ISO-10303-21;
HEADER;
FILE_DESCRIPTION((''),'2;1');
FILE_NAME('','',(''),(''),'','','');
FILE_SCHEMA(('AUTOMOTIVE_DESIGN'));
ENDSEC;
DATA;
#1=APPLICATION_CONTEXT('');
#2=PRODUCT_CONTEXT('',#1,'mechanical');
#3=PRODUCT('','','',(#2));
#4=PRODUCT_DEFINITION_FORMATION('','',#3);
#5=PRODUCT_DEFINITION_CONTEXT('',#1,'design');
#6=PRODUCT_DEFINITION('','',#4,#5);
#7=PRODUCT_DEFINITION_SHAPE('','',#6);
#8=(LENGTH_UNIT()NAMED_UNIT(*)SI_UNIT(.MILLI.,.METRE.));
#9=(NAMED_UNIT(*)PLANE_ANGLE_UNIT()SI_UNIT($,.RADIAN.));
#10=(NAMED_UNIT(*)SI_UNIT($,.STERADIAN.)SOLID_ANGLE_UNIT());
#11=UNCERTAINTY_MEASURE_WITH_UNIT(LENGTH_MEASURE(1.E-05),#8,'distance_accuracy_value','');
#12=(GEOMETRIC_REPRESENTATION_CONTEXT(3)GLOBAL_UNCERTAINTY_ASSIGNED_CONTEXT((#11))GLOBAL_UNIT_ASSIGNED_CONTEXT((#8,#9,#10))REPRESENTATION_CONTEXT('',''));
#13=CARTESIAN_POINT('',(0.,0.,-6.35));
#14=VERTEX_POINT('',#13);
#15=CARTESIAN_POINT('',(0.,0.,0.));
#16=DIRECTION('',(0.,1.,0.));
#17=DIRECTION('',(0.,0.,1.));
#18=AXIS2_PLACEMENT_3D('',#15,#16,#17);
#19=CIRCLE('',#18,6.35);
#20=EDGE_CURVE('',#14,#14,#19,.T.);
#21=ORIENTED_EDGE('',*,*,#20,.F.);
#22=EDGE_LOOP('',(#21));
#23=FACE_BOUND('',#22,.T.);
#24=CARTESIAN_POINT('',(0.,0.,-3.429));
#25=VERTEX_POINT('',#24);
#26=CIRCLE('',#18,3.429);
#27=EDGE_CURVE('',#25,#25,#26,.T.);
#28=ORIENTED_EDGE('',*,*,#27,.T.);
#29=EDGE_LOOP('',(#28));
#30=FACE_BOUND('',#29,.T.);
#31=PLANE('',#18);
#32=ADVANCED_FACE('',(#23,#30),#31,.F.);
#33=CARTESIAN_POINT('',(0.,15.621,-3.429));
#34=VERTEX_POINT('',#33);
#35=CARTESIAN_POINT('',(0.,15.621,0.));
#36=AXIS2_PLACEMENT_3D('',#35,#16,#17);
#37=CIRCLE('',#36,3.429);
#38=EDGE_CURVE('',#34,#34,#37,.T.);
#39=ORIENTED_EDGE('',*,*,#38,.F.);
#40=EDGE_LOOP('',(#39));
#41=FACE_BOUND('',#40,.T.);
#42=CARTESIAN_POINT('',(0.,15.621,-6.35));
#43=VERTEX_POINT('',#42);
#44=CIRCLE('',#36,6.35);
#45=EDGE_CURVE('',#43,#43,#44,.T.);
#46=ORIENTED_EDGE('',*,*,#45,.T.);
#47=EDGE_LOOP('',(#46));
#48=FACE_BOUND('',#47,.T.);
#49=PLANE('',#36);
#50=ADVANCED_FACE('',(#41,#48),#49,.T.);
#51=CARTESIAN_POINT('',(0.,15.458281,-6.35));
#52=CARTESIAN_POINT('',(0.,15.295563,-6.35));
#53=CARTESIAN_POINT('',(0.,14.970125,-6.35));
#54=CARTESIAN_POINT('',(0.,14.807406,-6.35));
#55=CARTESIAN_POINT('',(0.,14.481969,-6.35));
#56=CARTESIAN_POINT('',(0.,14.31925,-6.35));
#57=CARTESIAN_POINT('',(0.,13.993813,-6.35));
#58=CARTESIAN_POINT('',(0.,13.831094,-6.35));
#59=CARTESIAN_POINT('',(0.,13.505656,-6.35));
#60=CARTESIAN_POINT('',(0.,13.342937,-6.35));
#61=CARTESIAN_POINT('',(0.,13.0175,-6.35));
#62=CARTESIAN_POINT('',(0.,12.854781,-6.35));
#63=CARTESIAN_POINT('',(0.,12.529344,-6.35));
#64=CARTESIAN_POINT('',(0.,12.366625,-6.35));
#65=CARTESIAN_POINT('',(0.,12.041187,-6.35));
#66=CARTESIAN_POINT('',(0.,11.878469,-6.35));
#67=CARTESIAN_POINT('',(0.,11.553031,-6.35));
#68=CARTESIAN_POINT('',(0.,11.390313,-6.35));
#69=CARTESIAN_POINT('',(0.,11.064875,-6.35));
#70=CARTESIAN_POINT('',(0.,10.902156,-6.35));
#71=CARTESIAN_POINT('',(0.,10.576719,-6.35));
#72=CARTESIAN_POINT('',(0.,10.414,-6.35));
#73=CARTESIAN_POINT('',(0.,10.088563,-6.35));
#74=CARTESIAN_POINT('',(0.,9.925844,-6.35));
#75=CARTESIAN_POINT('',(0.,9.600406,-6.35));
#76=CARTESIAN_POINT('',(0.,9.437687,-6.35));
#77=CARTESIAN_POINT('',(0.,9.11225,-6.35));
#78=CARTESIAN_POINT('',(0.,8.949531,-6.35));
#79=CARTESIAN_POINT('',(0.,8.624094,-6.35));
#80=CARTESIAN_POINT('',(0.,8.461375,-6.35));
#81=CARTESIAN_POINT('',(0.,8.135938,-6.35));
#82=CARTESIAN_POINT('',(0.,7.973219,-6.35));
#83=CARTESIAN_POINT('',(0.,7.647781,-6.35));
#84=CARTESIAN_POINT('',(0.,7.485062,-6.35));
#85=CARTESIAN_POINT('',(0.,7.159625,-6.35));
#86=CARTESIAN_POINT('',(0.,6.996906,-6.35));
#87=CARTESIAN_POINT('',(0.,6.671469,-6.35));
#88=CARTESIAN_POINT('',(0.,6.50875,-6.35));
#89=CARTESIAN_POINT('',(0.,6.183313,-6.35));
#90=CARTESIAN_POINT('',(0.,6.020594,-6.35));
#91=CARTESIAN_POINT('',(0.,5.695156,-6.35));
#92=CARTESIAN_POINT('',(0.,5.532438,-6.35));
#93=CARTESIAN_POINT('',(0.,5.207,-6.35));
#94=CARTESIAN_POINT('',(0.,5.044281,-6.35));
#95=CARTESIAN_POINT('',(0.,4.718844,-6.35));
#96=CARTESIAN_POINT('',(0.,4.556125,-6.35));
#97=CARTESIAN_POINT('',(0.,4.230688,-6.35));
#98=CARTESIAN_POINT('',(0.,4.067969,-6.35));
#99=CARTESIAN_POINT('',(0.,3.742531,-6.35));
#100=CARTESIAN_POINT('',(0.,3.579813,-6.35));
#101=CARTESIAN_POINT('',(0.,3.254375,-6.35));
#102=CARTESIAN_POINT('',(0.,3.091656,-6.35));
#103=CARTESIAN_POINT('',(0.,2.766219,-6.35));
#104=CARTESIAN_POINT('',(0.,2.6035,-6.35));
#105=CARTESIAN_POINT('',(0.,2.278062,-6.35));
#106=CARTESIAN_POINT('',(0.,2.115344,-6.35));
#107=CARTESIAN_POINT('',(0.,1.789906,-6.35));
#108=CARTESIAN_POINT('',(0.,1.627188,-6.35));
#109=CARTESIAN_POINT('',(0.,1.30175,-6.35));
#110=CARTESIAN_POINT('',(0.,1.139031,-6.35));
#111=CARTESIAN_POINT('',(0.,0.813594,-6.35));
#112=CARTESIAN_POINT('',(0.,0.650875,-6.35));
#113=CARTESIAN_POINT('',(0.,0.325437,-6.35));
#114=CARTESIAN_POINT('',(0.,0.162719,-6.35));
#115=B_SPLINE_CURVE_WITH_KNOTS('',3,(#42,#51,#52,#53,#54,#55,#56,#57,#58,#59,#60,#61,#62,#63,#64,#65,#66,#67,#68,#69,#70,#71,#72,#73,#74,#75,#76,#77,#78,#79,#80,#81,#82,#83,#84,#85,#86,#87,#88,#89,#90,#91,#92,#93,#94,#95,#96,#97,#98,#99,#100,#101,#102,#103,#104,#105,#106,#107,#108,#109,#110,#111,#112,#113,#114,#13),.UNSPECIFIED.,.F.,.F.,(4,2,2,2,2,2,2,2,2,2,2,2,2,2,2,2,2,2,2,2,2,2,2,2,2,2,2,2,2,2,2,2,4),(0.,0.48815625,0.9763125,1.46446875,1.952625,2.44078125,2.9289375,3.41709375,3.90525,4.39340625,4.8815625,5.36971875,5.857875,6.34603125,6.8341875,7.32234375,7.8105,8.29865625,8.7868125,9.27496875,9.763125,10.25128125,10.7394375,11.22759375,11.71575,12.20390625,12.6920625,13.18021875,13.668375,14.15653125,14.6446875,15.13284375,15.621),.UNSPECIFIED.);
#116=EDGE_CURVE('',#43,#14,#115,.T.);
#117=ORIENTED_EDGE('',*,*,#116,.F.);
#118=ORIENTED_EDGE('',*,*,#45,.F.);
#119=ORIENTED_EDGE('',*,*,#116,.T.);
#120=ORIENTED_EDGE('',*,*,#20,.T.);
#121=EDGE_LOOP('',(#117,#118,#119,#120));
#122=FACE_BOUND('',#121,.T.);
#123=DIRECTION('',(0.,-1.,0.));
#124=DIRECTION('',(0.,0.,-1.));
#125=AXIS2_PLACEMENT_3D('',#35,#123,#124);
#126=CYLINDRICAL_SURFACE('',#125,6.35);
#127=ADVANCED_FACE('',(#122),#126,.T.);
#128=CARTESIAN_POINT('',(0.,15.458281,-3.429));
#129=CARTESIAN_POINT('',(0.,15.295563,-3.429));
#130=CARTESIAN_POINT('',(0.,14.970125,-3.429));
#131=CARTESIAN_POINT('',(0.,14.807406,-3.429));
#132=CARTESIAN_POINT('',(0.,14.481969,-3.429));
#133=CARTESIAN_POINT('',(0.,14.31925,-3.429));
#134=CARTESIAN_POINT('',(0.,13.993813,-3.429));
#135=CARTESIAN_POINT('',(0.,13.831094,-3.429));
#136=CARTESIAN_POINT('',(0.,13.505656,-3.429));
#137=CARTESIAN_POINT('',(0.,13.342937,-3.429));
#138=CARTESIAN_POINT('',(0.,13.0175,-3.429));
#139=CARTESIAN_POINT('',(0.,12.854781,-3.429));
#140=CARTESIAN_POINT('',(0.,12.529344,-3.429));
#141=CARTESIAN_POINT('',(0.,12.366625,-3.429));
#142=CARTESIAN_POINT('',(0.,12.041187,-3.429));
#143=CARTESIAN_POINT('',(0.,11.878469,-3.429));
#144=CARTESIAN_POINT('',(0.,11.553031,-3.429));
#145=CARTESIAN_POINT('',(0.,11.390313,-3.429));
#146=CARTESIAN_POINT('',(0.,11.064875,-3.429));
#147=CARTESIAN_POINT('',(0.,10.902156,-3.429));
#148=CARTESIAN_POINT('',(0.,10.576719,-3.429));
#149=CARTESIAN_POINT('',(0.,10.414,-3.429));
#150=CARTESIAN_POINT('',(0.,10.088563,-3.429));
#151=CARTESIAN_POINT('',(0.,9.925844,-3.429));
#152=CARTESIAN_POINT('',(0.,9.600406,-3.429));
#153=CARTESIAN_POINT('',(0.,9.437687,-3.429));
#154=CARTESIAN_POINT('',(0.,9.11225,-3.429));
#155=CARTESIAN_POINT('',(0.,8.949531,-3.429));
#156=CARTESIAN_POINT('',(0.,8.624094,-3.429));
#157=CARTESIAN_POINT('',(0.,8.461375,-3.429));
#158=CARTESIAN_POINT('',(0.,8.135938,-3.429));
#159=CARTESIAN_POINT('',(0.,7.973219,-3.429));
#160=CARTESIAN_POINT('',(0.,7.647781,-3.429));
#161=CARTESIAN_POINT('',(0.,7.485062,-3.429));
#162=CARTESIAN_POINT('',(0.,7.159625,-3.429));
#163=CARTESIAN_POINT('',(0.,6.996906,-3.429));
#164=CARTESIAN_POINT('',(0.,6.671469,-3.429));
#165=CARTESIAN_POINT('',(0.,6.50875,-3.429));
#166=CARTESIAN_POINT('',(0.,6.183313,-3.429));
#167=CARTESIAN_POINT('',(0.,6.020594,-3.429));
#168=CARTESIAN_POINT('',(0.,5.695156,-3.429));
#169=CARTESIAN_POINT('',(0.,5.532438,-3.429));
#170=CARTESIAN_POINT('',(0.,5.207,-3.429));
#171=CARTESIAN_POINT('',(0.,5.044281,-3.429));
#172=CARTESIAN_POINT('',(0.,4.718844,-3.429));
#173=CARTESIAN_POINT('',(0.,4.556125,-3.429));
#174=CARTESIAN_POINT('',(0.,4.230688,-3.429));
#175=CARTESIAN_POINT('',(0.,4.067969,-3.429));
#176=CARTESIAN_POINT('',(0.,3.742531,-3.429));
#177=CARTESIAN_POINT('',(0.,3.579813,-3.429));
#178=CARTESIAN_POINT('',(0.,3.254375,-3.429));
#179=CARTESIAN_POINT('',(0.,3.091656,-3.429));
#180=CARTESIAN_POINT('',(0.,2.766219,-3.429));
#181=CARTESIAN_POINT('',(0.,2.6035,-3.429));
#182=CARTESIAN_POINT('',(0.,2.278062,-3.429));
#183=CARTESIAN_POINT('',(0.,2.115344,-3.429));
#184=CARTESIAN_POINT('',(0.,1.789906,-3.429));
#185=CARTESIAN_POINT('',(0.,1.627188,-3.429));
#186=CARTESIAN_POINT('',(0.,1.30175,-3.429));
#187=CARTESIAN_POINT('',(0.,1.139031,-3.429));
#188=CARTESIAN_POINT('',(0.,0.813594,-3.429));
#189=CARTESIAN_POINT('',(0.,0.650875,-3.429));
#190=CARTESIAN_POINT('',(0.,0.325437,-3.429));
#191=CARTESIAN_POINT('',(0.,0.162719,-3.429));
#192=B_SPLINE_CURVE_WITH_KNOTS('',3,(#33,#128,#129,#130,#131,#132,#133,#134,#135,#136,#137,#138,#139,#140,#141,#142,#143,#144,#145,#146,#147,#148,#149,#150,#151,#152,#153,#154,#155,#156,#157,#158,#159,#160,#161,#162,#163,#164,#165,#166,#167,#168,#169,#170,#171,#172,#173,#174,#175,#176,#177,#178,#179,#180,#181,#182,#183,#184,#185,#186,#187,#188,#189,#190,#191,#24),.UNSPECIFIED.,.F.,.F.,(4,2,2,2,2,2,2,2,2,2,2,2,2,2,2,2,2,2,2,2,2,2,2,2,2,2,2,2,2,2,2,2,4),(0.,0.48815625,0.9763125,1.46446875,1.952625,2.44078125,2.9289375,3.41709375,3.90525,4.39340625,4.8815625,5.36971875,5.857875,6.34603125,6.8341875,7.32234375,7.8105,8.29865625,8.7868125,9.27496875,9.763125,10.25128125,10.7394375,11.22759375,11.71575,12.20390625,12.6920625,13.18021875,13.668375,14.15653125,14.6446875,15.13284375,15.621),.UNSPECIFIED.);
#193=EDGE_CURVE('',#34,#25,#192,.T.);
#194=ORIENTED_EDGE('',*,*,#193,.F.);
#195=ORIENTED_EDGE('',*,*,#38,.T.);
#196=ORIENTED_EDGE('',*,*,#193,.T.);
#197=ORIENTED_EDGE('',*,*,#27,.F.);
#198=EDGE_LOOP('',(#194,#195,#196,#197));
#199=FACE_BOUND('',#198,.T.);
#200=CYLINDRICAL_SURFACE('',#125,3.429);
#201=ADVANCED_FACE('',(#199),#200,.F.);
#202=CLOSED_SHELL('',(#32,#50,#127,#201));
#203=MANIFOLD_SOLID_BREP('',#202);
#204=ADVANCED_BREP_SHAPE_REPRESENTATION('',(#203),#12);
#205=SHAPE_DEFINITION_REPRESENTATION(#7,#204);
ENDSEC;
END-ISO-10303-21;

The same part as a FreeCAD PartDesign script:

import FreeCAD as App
import Part
import Sketcher

V = App.Vector
Q = App.Units.Quantity

doc = App.newDocument("Part")
body = doc.addObject("PartDesign::Body", "Body")

# Sketch on XZ plane
sketch1 = body.newObject("Sketcher::SketchObject", "Sketch")
sketch1.AttachmentSupport = (doc.getObject("XZ_Plane"), [""])
sketch1.MapMode = "FlatFace"
sketch1.addGeometry(Part.Circle(V(0, 0, 0), V(0, 0, 1), 6.3), False)
sketch1.addGeometry(Part.Circle(V(0, 0, 0), V(0, 0, 1), 3.4), False)
sketch1.addConstraint(Sketcher.Constraint("Coincident", 0, 3, -1, 1))
sketch1.addConstraint(Sketcher.Constraint("Coincident", 1, 3, -1, 1))
sketch1.addConstraint(Sketcher.Constraint("Diameter", 0, Q("0.5 in")))
sketch1.addConstraint(Sketcher.Constraint("Diameter", 1, Q("0.27 in")))
pad1 = body.newObject("PartDesign::Pad", "Pad")
pad1.Profile = sketch1
pad1.Length = Q("0.615 in")
pad1.Reversed = True

doc.recompute()
